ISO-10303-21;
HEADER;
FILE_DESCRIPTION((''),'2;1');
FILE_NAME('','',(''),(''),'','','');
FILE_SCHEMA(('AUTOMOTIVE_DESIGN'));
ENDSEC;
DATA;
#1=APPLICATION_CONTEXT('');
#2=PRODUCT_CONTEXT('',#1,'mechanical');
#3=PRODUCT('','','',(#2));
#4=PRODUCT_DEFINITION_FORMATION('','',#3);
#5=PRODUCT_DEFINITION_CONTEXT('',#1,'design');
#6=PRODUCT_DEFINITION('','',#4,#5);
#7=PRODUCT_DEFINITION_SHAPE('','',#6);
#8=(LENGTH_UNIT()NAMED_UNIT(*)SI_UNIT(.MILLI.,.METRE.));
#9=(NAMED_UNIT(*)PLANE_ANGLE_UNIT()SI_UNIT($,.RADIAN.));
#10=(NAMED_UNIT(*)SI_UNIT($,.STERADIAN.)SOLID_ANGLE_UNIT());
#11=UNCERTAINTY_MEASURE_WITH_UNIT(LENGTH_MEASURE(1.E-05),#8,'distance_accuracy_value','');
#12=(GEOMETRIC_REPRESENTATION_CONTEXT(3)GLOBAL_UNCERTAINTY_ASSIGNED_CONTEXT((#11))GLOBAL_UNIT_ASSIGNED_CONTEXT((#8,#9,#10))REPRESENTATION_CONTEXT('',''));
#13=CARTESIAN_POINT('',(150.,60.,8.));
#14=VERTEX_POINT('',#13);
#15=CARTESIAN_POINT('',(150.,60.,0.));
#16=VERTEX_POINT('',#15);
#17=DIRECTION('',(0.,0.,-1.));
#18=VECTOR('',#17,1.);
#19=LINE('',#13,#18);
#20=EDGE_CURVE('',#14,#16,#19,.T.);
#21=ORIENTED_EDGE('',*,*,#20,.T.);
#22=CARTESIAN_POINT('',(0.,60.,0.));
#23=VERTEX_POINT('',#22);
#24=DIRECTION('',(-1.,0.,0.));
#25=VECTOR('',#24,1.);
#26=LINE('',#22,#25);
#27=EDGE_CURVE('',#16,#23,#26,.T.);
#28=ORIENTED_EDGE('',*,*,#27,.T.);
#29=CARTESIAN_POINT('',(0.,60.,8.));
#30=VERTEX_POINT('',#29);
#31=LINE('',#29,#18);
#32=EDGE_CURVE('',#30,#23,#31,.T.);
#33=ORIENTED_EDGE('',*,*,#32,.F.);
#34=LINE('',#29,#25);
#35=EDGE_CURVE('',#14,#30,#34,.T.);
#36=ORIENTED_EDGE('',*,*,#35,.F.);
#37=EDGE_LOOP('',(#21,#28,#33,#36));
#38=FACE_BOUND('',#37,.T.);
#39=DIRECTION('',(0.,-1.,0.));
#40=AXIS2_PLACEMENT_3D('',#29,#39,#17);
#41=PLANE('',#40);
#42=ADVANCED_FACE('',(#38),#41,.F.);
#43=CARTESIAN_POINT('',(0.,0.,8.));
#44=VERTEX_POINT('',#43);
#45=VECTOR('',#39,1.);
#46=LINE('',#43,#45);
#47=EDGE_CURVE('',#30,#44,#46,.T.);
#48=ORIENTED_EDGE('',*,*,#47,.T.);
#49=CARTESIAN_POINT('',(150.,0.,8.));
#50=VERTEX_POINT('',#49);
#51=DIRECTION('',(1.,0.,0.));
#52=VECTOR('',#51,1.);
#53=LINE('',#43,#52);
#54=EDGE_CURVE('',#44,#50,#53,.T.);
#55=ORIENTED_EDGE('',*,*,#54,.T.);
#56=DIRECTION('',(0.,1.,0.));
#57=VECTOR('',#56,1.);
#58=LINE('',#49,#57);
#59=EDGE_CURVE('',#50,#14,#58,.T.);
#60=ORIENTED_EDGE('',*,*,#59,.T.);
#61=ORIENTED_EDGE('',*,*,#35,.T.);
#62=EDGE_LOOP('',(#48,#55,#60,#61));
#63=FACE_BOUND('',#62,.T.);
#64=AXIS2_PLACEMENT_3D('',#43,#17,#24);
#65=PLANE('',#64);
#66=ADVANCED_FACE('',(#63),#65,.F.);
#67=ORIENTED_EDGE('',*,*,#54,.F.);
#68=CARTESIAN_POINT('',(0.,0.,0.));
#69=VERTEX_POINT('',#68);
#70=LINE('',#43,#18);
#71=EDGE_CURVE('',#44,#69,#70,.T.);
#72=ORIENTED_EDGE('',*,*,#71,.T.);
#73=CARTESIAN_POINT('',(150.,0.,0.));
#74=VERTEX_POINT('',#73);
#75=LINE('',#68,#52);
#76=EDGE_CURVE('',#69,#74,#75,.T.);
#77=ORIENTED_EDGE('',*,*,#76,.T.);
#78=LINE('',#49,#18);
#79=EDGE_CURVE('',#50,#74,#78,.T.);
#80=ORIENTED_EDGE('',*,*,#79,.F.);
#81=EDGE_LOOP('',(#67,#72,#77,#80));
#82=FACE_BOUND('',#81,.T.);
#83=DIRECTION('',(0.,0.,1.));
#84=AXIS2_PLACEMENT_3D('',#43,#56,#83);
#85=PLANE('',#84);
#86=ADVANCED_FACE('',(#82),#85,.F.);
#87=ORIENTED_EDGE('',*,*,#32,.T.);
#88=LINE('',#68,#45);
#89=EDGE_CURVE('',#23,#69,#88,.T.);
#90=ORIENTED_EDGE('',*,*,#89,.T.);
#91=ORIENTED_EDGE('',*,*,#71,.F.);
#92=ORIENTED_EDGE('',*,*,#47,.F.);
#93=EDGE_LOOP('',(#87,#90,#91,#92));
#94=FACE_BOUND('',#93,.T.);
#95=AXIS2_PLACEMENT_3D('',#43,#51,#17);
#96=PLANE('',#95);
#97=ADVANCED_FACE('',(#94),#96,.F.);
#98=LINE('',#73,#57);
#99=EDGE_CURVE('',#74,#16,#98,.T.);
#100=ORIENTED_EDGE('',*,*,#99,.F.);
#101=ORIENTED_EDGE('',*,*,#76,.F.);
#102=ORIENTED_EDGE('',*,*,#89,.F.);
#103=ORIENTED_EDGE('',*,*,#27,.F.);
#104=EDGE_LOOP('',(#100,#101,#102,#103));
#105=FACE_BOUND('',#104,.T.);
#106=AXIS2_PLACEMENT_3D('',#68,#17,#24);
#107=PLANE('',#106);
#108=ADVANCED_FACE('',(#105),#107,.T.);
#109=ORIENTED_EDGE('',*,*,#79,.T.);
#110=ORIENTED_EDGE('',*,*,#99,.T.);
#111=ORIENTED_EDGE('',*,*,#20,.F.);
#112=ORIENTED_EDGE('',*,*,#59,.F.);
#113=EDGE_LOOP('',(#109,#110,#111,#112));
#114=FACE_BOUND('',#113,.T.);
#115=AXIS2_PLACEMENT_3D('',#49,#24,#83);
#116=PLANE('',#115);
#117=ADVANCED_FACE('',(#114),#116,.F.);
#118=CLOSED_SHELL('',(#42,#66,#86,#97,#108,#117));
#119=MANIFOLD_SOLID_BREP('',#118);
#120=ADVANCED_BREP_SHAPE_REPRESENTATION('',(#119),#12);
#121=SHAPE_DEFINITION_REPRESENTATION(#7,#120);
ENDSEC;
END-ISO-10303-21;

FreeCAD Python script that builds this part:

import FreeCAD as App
import Part
import Sketcher
Q = App.Units.Quantity

doc = App.newDocument("Part")
body = doc.addObject("PartDesign::Body", "Body")

sketch1 = body.newObject("Sketcher::SketchObject", "Sketch")
sketch1.AttachmentSupport = (doc.getObject("XY_Plane"), [""])
sketch1.MapMode = "FlatFace"
sketch1.addGeometry(Part.LineSegment(App.Vector(0, 60, 0), App.Vector(0, 0, 0)), False)
sketch1.addGeometry(Part.LineSegment(App.Vector(0, 0, 0), App.Vector(150, 0, 0)), False)
sketch1.addGeometry(Part.LineSegment(App.Vector(150, 0, 0), App.Vector(150, 60, 0)), False)
sketch1.addGeometry(Part.LineSegment(App.Vector(150, 60, 0), App.Vector(0, 60, 0)), False)
sketch1.addConstraint(Sketcher.Constraint("Coincident", 0, 2, 1, 1))
sketch1.addConstraint(Sketcher.Constraint("Coincident", 1, 2, 2, 1))
sketch1.addConstraint(Sketcher.Constraint("Coincident", 2, 2, 3, 1))
sketch1.addConstraint(Sketcher.Constraint("Coincident", 3, 2, 0, 1))
sketch1.addConstraint(Sketcher.Constraint("Vertical", 0))
sketch1.addConstraint(Sketcher.Constraint("Horizontal", 1))
sketch1.addConstraint(Sketcher.Constraint("Vertical", 2))
sketch1.addConstraint(Sketcher.Constraint("Horizontal", 3))
sketch1.addConstraint(Sketcher.Constraint("Coincident", 0, 2, -1, 1))
sketch1.addConstraint(Sketcher.Constraint("DistanceX", 1, 1, 1, 2, Q("150 mm")))
sketch1.addConstraint(Sketcher.Constraint("DistanceY", 0, 2, 0, 1, Q("60 mm")))
pad1 = body.newObject("PartDesign::Pad", "Pad")
pad1.Profile = sketch1
pad1.Length = 8

doc.recompute()
